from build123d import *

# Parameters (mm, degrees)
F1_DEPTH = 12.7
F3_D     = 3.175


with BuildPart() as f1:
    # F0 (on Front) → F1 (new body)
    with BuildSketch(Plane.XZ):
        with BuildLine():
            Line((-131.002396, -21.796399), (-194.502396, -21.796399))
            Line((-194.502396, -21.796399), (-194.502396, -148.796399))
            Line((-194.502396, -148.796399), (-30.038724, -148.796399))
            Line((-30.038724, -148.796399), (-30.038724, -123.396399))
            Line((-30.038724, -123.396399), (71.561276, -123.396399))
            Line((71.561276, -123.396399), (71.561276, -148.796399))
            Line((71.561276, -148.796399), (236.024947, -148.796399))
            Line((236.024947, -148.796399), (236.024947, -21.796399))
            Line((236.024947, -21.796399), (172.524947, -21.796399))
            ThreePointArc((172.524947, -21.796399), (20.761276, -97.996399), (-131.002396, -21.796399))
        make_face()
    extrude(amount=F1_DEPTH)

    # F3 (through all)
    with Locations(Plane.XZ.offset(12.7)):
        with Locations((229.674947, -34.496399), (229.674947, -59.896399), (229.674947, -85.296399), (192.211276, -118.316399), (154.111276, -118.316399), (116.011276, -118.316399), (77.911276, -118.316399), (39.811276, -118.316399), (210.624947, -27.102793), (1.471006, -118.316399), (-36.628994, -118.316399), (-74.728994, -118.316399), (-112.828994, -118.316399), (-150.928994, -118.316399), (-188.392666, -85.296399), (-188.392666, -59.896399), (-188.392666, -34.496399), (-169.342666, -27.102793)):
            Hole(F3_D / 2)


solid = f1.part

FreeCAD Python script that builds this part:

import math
import FreeCAD as App
import Part
import Sketcher
from FreeCAD import Vector
Q = App.Units.Quantity

doc = App.newDocument("Part")
body = doc.addObject("PartDesign::Body", "Body")

# Sketch on XZ plane
sketch1 = doc.addObject("Sketcher::SketchObject", "Sketch")
body.addObject(sketch1)
sketch1.AttachmentSupport = (doc.XZ_Plane, [""])
sketch1.MapMode = "FlatFace"
sketch1.addGeometry([
    Part.LineSegment(Vector(-131.002396, -21.796399, 0), Vector(-194.502396, -21.796399, 0)),  # 0
    Part.LineSegment(Vector(-194.502396, -21.796399, 0), Vector(-194.502396, -148.796399, 0)),  # 1
    Part.LineSegment(Vector(-194.502396, -148.796399, 0), Vector(-30.038724, -148.796399, 0)),  # 2
    Part.LineSegment(Vector(-30.038724, -148.796399, 0), Vector(-30.038724, -123.396399, 0)),  # 3
    Part.LineSegment(Vector(-30.038724, -123.396399, 0), Vector(71.561276, -123.396399, 0)),  # 4
    Part.LineSegment(Vector(71.561276, -123.396399, 0), Vector(71.561276, -148.796399, 0)),  # 5
    Part.LineSegment(Vector(71.561276, -148.796399, 0), Vector(236.024947, -148.796399, 0)),  # 6
    Part.LineSegment(Vector(236.024947, -148.796399, 0), Vector(236.024947, -21.796399, 0)),  # 7
    Part.LineSegment(Vector(236.024947, -21.796399, 0), Vector(172.524947, -21.796399, 0)),  # 8
    Part.ArcOfCircle(Part.Circle(Vector(20.761275, 91.233601, 0), Vector(0, 0, 1), 189.23), math.radians(-143.322129), math.radians(-36.677871)),  # 9
], False)
sketch1.addConstraint([
    Sketcher.Constraint("Coincident", 0, 2, 1, 1),
    Sketcher.Constraint("Coincident", 1, 2, 2, 1),
    Sketcher.Constraint("Coincident", 2, 2, 3, 1),
    Sketcher.Constraint("Coincident", 3, 2, 4, 1),
    Sketcher.Constraint("Coincident", 4, 2, 5, 1),
    Sketcher.Constraint("Coincident", 5, 2, 6, 1),
    Sketcher.Constraint("Coincident", 6, 2, 7, 1),
    Sketcher.Constraint("Coincident", 7, 2, 8, 1),
    Sketcher.Constraint("Coincident", 8, 2, 9, 2),
    Sketcher.Constraint("Coincident", 9, 1, 0, 1),
    Sketcher.Constraint("Horizontal", 0),
    Sketcher.Constraint("Vertical", 1),
    Sketcher.Constraint("Horizontal", 2),
    Sketcher.Constraint("Vertical", 3),
    Sketcher.Constraint("Horizontal", 4),
    Sketcher.Constraint("Vertical", 5),
    Sketcher.Constraint("Horizontal", 6),
    Sketcher.Constraint("Vertical", 7),
    Sketcher.Constraint("Horizontal", 8),
    Sketcher.Constraint("Horizontal", 2, 2, 5, 2),
    Sketcher.Constraint("Horizontal", 0, 2, 7, 2),
    Sketcher.Constraint("Equal", 2, 6),
    Sketcher.Constraint("Equal", 0, 8),
    Sketcher.Constraint("DistanceX", 4, 1, 4, 2, Q("4 in")),
    Sketcher.Constraint("DistanceY", 1, 2, 1, 1, Q("5 in")),
    Sketcher.Constraint("DistanceY", 3, 1, 3, 2, Q("1 in")),
    Sketcher.Constraint("Radius", 9, Q("7.45 in")),
    Sketcher.Constraint("DistanceX", 0, 2, 0, 1, Q("2.5 in")),
    Sketcher.Constraint("DistanceY", 0, 2, 9, 3, Q("4.45 in")),
    Sketcher.Constraint("DistanceY", -1, 1, 9, 3, Q("91.233601 mm")),
    Sketcher.Constraint("DistanceX", -1, 1, 9, 3, Q("20.761275 mm")),
])
pad1 = doc.addObject("PartDesign::Pad", "Pad")
body.addObject(pad1)
pad1.Profile = sketch1
pad1.Length = Q("0.5 in")

# Sketch on XZ plane
sketch2 = doc.addObject("Sketcher::SketchObject", "Sketch001")
body.addObject(sketch2)
sketch2.AttachmentSupport = (doc.XZ_Plane, [""])
sketch2.MapMode = "FlatFace"
sketch2.AttachmentOffset = App.Placement(Vector(0, 0, 0.5 * 25.4), App.Rotation())
sketch2.addGeometry([
    Part.Circle(Vector(229.674947, -34.496399, 0), Vector(0, 0, 1), 1.5875),  # 0
    Part.Circle(Vector(229.674947, -59.896399, 0), Vector(0, 0, 1), 1.5875),  # 1
    Part.Circle(Vector(229.674947, -85.296399, 0), Vector(0, 0, 1), 1.5875),  # 2
    Part.Circle(Vector(192.211276, -118.316399, 0), Vector(0, 0, 1), 1.5875),  # 3
    Part.Circle(Vector(154.111276, -118.316399, 0), Vector(0, 0, 1), 1.5875),  # 4
    Part.Circle(Vector(116.011276, -118.316399, 0), Vector(0, 0, 1), 1.5875),  # 5
    Part.Circle(Vector(77.911276, -118.316399, 0), Vector(0, 0, 1), 1.5875),  # 6
    Part.Circle(Vector(39.811276, -118.316399, 0), Vector(0, 0, 1), 1.5875),  # 7
    Part.Circle(Vector(210.624947, -27.102793, 0), Vector(0, 0, 1), 1.5875),  # 8
    Part.Circle(Vector(1.471006, -118.316399, 0), Vector(0, 0, 1), 1.5875),  # 9
    Part.Circle(Vector(-36.628994, -118.316399, 0), Vector(0, 0, 1), 1.5875),  # 10
    Part.Circle(Vector(-74.728994, -118.316399, 0), Vector(0, 0, 1), 1.5875),  # 11
    Part.Circle(Vector(-112.828994, -118.316399, 0), Vector(0, 0, 1), 1.5875),  # 12
    Part.Circle(Vector(-150.928994, -118.316399, 0), Vector(0, 0, 1), 1.5875),  # 13
    Part.Circle(Vector(-188.392666, -85.296399, 0), Vector(0, 0, 1), 1.5875),  # 14
    Part.Circle(Vector(-188.392666, -59.896399, 0), Vector(0, 0, 1), 1.5875),  # 15
    Part.Circle(Vector(-188.392666, -34.496399, 0), Vector(0, 0, 1), 1.5875),  # 16
    Part.Circle(Vector(-169.342666, -27.102793, 0), Vector(0, 0, 1), 1.5875),  # 17
], False)
sketch2.addConstraint([
    Sketcher.Constraint("Equal", 0, 1),
    Sketcher.Constraint("Equal", 1, 2),
    Sketcher.Constraint("Equal", 2, 3),
    Sketcher.Constraint("Equal", 3, 4),
    Sketcher.Constraint("Equal", 4, 5),
    Sketcher.Constraint("Equal", 5, 6),
    Sketcher.Constraint("Equal", 6, 7),
    Sketcher.Constraint("Equal", 7, 8),
    Sketcher.Constraint("Equal", 8, 9),
    Sketcher.Constraint("Equal", 9, 10),
    Sketcher.Constraint("Equal", 10, 11),
    Sketcher.Constraint("Equal", 11, 12),
    Sketcher.Constraint("Equal", 12, 13),
    Sketcher.Constraint("Equal", 13, 14),
    Sketcher.Constraint("Equal", 14, 15),
    Sketcher.Constraint("Equal", 15, 16),
    Sketcher.Constraint("Equal", 16, 17),
    Sketcher.Constraint("Horizontal", 3, 3, 4, 3),
    Sketcher.Constraint("Horizontal", 4, 3, 5, 3),
    Sketcher.Constraint("Horizontal", 5, 3, 6, 3),
    Sketcher.Constraint("Horizontal", 6, 3, 7, 3),
    Sketcher.Constraint("Horizontal", 7, 3, 9, 3),
    Sketcher.Constraint("Horizontal", 9, 3, 10, 3),
    Sketcher.Constraint("Horizontal", 10, 3, 11, 3),
    Sketcher.Constraint("Horizontal", 11, 3, 12, 3),
    Sketcher.Constraint("Horizontal", 12, 3, 13, 3),
    Sketcher.Constraint("Horizontal", 2, 3, 14, 3),
    Sketcher.Constraint("Horizontal", 1, 3, 15, 3),
    Sketcher.Constraint("Horizontal", 0, 3, 16, 3),
    Sketcher.Constraint("Horizontal", 8, 3, 17, 3),
    Sketcher.Constraint("Vertical", 0, 3, 1, 3),
    Sketcher.Constraint("Vertical", 1, 3, 2, 3),
    Sketcher.Constraint("Vertical", 14, 3, 15, 3),
    Sketcher.Constraint("Vertical", 15, 3, 16, 3),
    Sketcher.Constraint("Diameter", 0, Q("0.125 in")),
    Sketcher.Constraint("DistanceY", 1, 3, 0, 3, Q("1 in")),
    Sketcher.Constraint("DistanceY", 2, 3, 1, 3, Q("1 in")),
    Sketcher.Constraint("DistanceX", 5, 3, 3, 3, Q("3 in")),
    Sketcher.Constraint("DistanceX", 6, 3, 4, 3, Q("3 in")),
    Sketcher.Constraint("DistanceX", 7, 3, 5, 3, Q("3 in")),
    Sketcher.Constraint("DistanceX", 11, 3, 9, 3, Q("3 in")),
    Sketcher.Constraint("DistanceX", 12, 3, 10, 3, Q("3 in")),
    Sketcher.Constraint("DistanceX", 13, 3, 11, 3, Q("3 in")),
    Sketcher.Constraint("DistanceY", 3, 3, 2, 3, Q("1.3 in")),
    Sketcher.Constraint("DistanceX", 4, 3, 3, 3, Q("1.5 in")),
    Sketcher.Constraint("DistanceX", 10, 3, 9, 3, Q("1.5 in")),
    Sketcher.Constraint("DistanceX", 8, 3, 0, 3, Q("0.75 in")),
    Sketcher.Constraint("DistanceX", 16, 3, 17, 3, Q("0.75 in")),
    Sketcher.Constraint("DistanceY", 0, 3, -1, 1, Q("34.496399 mm")),
    Sketcher.Constraint("DistanceX", 3, 3, 2, 3, Q("37.463671 mm")),
    Sketcher.Constraint("DistanceX", 9, 3, 7, 3, Q("38.34027 mm")),
    Sketcher.Constraint("DistanceX", 14, 3, 12, 3, Q("75.563672 mm")),
    Sketcher.Constraint("DistanceX", -1, 1, 0, 3, Q("229.674947 mm")),
    Sketcher.Constraint("DistanceY", 8, 3, -1, 1, Q("27.102793 mm")),
])
doc.recompute()
hole = doc.addObject("PartDesign::Hole", "Hole")
body.addObject(hole)
hole.Profile = sketch2
hole.ThreadType = "None"
hole.Diameter = Q("0.125 in")
hole.DepthType = "ThroughAll"

doc.recompute()
